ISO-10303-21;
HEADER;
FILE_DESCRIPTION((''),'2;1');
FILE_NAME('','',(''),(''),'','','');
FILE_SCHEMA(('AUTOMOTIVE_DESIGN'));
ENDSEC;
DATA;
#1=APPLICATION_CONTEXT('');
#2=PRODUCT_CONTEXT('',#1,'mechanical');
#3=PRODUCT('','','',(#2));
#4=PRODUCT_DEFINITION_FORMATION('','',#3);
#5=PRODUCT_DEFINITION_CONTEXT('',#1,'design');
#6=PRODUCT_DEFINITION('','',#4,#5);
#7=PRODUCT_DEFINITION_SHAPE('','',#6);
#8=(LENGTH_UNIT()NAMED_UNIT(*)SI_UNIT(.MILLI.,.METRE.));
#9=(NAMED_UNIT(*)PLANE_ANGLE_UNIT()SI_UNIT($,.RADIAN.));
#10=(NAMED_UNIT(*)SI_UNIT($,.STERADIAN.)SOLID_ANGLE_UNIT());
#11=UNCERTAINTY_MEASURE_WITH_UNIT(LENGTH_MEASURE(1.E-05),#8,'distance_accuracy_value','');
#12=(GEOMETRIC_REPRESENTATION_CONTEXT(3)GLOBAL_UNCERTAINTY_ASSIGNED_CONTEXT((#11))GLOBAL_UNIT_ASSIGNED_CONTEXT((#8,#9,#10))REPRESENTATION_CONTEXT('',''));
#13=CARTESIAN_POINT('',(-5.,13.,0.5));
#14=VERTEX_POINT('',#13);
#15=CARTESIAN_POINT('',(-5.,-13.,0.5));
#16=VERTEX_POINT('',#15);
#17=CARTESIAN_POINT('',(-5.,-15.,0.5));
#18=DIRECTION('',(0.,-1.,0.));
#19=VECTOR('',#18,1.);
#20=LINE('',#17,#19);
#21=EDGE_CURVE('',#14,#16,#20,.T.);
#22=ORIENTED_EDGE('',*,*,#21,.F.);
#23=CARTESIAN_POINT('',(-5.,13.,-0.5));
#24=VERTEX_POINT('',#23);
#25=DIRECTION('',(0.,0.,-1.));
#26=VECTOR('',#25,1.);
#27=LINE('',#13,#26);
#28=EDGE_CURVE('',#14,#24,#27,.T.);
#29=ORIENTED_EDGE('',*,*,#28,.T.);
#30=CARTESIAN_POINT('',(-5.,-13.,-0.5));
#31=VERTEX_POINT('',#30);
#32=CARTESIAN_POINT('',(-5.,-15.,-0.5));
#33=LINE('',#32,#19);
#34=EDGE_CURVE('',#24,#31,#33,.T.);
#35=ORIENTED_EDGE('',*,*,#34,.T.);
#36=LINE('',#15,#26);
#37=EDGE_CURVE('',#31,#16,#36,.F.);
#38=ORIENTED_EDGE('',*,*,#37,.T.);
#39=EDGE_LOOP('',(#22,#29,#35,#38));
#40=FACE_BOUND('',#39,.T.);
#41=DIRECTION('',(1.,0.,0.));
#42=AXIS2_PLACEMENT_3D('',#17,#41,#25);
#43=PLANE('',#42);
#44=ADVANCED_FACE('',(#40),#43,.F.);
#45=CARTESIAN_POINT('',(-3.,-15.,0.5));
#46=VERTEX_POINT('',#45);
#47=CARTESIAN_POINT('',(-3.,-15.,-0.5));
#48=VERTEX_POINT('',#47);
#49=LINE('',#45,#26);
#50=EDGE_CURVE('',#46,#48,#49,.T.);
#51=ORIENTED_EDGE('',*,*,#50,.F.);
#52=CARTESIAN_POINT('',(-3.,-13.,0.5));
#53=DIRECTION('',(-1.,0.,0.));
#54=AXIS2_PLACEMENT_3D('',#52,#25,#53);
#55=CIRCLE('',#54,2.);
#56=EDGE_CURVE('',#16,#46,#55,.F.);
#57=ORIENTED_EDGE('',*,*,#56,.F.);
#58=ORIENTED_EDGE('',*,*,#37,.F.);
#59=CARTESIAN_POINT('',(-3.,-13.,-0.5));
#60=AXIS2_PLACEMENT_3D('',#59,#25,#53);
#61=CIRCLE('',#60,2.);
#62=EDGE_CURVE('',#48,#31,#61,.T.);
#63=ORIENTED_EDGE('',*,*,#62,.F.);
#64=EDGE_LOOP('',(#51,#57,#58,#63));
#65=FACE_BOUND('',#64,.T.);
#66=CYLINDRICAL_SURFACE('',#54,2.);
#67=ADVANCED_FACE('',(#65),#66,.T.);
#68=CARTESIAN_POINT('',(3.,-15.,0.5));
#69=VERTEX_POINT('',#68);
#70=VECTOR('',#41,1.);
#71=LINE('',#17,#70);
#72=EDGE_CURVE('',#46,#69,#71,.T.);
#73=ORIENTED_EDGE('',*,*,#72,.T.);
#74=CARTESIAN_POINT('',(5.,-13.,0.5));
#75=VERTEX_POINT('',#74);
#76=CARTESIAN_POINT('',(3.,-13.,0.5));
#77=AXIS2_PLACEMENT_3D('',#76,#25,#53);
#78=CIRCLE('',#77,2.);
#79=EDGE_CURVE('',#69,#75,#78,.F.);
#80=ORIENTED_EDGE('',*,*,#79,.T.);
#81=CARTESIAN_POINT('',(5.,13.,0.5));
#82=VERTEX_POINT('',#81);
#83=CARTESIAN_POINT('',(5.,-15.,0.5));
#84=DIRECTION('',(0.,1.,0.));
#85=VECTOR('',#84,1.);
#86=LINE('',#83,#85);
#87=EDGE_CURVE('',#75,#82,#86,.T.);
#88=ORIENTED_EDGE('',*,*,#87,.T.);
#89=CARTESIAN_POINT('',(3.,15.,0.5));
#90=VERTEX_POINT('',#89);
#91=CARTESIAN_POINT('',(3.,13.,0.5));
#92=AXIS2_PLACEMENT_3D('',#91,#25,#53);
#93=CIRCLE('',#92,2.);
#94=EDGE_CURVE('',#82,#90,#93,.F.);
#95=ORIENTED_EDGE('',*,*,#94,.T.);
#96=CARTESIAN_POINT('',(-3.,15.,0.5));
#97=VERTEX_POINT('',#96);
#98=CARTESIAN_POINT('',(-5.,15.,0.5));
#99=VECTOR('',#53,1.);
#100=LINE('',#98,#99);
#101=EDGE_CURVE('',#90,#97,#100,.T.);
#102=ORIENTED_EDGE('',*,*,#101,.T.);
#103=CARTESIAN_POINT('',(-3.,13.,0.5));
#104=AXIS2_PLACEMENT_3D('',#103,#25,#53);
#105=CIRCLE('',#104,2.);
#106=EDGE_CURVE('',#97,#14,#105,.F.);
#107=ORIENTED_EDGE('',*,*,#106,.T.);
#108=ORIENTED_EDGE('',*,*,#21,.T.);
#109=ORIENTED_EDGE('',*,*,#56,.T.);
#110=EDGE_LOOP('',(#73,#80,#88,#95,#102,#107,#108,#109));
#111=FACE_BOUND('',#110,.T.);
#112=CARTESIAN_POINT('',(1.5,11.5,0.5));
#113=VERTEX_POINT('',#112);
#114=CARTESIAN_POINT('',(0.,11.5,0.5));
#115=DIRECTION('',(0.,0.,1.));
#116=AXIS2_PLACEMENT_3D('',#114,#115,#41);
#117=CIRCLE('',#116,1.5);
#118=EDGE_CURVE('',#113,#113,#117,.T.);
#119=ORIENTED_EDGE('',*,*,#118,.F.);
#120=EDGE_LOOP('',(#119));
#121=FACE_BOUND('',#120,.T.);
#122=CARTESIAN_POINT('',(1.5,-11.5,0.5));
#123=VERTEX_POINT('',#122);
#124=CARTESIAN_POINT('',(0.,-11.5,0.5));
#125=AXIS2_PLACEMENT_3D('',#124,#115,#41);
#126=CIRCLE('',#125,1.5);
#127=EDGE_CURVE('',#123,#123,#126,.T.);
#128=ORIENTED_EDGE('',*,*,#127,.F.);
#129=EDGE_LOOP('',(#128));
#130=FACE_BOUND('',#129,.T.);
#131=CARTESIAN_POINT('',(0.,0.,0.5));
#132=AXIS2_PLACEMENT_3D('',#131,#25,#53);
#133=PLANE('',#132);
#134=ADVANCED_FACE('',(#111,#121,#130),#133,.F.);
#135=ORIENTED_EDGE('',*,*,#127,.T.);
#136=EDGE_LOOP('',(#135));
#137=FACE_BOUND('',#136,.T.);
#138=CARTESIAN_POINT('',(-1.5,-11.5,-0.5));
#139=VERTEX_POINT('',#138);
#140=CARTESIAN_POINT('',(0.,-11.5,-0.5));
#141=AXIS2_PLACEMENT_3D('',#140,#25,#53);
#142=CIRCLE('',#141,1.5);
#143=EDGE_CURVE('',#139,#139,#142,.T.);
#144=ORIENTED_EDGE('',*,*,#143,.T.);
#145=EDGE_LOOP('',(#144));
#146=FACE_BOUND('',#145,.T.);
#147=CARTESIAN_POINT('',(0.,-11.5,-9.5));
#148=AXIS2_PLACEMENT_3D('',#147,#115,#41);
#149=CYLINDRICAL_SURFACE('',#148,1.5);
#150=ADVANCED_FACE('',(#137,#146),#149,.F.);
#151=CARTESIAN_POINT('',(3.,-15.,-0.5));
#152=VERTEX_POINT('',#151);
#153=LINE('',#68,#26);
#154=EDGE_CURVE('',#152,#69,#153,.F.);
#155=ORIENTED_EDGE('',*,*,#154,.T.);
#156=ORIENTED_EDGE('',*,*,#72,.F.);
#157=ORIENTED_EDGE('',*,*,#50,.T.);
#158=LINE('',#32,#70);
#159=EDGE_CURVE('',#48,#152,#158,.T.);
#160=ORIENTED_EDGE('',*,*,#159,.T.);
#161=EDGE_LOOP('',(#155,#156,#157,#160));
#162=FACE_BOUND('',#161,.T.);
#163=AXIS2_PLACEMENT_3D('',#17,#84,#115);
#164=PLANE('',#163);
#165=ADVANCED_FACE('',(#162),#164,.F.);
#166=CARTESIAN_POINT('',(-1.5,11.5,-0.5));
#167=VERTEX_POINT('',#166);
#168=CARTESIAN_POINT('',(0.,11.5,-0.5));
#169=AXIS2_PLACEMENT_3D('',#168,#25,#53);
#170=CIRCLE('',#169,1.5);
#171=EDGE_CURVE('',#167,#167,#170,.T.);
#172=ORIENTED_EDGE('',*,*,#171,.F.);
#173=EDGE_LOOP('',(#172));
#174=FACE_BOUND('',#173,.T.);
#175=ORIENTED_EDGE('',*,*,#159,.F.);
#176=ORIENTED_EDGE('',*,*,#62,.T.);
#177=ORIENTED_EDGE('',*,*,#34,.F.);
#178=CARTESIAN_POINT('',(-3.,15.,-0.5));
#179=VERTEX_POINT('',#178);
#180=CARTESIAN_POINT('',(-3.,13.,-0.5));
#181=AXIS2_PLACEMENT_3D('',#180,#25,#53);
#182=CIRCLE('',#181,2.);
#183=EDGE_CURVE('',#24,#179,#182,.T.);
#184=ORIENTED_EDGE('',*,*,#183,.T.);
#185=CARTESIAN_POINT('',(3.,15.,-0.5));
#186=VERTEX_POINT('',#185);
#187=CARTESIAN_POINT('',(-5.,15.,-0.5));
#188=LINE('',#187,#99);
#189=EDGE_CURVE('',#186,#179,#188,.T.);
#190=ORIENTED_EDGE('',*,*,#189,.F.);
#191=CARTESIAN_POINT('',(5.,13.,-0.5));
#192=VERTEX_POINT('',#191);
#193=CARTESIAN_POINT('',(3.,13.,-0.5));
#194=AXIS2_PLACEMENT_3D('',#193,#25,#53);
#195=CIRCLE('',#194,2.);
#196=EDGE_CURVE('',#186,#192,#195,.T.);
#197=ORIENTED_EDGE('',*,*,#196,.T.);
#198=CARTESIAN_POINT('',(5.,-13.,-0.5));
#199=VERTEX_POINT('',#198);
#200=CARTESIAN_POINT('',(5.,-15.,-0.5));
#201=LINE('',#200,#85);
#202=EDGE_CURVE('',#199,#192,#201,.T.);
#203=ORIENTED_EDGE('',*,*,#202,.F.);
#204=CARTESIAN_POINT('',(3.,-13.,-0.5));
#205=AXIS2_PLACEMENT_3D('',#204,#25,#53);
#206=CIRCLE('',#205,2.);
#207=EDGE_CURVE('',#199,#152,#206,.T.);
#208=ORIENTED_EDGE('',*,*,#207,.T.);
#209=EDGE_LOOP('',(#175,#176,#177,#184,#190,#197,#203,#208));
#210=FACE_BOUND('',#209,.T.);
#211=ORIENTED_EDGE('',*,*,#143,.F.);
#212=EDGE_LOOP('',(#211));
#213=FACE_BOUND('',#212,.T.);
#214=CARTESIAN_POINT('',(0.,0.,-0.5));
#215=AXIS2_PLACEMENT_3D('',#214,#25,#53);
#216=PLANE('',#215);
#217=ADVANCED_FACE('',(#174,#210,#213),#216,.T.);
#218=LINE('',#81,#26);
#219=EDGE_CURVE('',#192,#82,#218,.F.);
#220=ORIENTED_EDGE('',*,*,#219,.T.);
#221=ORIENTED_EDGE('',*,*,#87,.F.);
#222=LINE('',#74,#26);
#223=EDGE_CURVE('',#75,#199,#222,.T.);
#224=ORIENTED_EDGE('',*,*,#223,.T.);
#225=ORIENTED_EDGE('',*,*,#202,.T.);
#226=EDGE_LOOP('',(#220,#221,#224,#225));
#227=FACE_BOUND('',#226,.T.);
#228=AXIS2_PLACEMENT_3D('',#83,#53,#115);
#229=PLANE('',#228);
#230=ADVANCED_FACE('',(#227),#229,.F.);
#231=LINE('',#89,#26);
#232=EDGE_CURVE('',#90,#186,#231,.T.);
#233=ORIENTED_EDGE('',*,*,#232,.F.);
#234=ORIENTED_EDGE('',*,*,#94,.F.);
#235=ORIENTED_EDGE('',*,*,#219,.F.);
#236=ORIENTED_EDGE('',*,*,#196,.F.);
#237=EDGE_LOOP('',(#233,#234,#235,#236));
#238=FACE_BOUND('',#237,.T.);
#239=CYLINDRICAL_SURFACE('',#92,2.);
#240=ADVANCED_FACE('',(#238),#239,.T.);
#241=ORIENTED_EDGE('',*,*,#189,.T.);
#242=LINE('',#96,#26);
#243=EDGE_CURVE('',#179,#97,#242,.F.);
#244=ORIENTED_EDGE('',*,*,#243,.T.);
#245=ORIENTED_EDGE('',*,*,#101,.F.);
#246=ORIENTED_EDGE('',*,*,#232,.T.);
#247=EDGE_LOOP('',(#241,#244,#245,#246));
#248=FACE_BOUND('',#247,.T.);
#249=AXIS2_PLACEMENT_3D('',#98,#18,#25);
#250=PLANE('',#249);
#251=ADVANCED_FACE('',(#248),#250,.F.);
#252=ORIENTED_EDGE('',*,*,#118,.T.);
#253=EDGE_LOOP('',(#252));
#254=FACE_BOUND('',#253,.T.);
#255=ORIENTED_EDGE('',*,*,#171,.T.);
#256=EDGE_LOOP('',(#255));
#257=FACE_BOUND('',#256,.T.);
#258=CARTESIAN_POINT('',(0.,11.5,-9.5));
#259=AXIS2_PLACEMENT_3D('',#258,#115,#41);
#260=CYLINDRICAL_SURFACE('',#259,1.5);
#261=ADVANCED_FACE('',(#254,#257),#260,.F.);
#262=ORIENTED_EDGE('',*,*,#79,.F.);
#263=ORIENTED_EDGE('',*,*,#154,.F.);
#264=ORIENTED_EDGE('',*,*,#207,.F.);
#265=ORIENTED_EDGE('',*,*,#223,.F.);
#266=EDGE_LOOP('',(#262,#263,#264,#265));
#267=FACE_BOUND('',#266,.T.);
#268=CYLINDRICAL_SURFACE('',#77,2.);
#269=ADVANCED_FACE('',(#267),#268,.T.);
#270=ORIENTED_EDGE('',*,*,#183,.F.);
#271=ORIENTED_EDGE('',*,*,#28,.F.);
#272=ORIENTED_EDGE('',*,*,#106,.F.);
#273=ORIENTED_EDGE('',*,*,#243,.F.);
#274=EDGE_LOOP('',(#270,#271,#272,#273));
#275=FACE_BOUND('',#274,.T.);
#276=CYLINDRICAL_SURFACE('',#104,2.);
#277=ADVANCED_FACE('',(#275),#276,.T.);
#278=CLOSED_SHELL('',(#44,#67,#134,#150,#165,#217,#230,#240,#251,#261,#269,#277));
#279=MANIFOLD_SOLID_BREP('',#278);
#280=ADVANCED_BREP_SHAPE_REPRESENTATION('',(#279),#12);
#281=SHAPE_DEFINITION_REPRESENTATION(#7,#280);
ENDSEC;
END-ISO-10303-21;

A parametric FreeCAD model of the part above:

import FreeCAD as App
import Part
import Sketcher
from FreeCAD import Vector


def edges_at(feature, points):
    """Names of the edges that pass closest to the given points."""
    edges = feature.Shape.Edges
    near = lambda p: min(range(len(edges)), key=lambda i: edges[i].distToShape(Part.Vertex(*p))[0])
    return sorted({f"Edge{near(p) + 1}" for p in points})


def add_polygon(sketch, points):
    """Adds a closed chain of lines whose ends are joined by coincident constraints."""
    first, n = sketch.GeometryCount, len(points)
    for a, b in zip(points, points[1:] + points[:1]):
        sketch.addGeometry(Part.LineSegment(App.Vector(*a, 0), App.Vector(*b, 0)), False)
    for i in range(n):
        sketch.addConstraint(Sketcher.Constraint("Coincident", first + i, 2, first + (i + 1) % n, 1))

doc = App.newDocument("Part")
params = doc.addObject("Spreadsheet::Sheet", "Params")
for row, (alias, value) in enumerate([
    ("sketch1_width", "10 mm"),
    ("sketch1_height", "30 mm"),
    ("pad1_length", "1 mm"),
    ("sketch2_diameter", "3 mm"),
    ("pocket1_length", "10 mm"),
    ("fillet_radius", "2 mm"),
], start=1):
    params.set(f"A{row}", alias)
    params.set(f"B{row}", "=" + value)
    params.setAlias(f"B{row}", alias)

body = doc.addObject("PartDesign::Body", "Body")

sketch1 = body.newObject("Sketcher::SketchObject", "Sketch")
sketch1.AttachmentSupport = (doc.getObject("XY_Plane"), [""])
sketch1.MapMode = "FlatFace"
add_polygon(sketch1, [(-5, 15), (-5, -15), (5, -15), (5, 15)])
sketch1.addConstraint(Sketcher.Constraint("Vertical", 0))
sketch1.addConstraint(Sketcher.Constraint("Horizontal", 1))
sketch1.addConstraint(Sketcher.Constraint("Vertical", 2))
sketch1.addConstraint(Sketcher.Constraint("Horizontal", 3))
sketch1.addConstraint(Sketcher.Constraint("Symmetric", 0, 2, 2, 2, -1, 1))
sketch1.addConstraint(Sketcher.Constraint("DistanceX", 1, 1, 1, 2, 10.0))
sketch1.addConstraint(Sketcher.Constraint("DistanceY", 0, 2, 0, 1, 30.0))
sketch1.setExpression("Constraints[9]", "Params.sketch1_width")
sketch1.setExpression("Constraints[10]", "Params.sketch1_height")
pad1 = body.newObject("PartDesign::Pad", "Pad")
pad1.Profile = sketch1
pad1.setExpression("Length", "Params.pad1_length")
pad1.Midplane = True

sketch2 = body.newObject("Sketcher::SketchObject", "Sketch001")
sketch2.AttachmentSupport = (doc.getObject("XY_Plane"), [""])
sketch2.MapMode = "FlatFace"
sketch2.AttachmentOffset = App.Placement(Vector(0, 0, 0.5), App.Rotation())
sketch2.addGeometry(Part.Circle(Vector(0, 11.5, 0), Vector(0, 0, 1), 1.5), False)
sketch2.addGeometry(Part.Circle(Vector(0, -11.5, 0), Vector(0, 0, 1), 1.5), False)
sketch2.addConstraint(Sketcher.Constraint("Equal", 0, 1))
sketch2.addConstraint(Sketcher.Constraint("Symmetric", 0, 3, 1, 3, -1, 1))
sketch2.addConstraint(Sketcher.Constraint("PointOnObject", 0, 3, -2))
sketch2.addConstraint(Sketcher.Constraint("Diameter", 0, 3.0))
sketch2.addConstraint(Sketcher.Constraint("DistanceY", 1, 3, 0, 3, 23.0))
sketch2.setExpression("Constraints[3]", "Params.sketch2_diameter")
pocket1 = body.newObject("PartDesign::Pocket", "Pocket")
pocket1.Profile = sketch2
pocket1.setExpression("Length", "Params.pocket1_length")
doc.recompute()

fillet = body.newObject("PartDesign::Fillet", "Fillet")
fillet.Base = (pocket1, edges_at(pocket1, [
    (5, -15, 0),
    (-5, -15, 0),
    (-5, 15, 0),
    (5, 15, 0),
]))
fillet.setExpression("Radius", "Params.fillet_radius")

doc.recompute()
